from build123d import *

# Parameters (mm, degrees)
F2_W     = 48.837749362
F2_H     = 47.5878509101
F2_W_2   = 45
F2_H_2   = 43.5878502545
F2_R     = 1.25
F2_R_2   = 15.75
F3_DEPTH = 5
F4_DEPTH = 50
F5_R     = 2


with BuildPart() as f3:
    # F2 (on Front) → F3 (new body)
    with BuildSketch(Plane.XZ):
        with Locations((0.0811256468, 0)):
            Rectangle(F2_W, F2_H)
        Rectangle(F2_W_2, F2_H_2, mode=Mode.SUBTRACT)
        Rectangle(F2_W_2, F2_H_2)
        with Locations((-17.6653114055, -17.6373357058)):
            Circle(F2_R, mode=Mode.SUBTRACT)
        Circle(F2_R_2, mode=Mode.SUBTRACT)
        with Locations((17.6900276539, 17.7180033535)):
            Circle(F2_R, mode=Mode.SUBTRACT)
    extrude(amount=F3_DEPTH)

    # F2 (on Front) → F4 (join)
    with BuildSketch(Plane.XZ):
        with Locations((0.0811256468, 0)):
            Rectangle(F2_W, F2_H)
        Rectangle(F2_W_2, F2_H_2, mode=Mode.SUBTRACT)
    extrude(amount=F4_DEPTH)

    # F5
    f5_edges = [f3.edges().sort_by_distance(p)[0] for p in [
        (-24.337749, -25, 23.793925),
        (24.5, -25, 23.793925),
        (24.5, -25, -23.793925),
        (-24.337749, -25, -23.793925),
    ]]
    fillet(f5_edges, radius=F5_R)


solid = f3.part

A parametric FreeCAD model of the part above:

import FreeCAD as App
import Part
import Sketcher

V = App.Vector
Q = App.Units.Quantity


def edges_at(feature, points):
    """Names of the edges that pass closest to the given points."""
    edges = feature.Shape.Edges
    near = lambda p: min(range(len(edges)), key=lambda i: edges[i].distToShape(Part.Vertex(*p))[0])
    return sorted({f"Edge{near(p) + 1}" for p in points})


def add_polygon(sketch, points):
    """Adds a closed chain of lines whose ends are joined by coincident constraints."""
    first, n = sketch.GeometryCount, len(points)
    for a, b in zip(points, points[1:] + points[:1]):
        sketch.addGeometry(Part.LineSegment(App.Vector(*a, 0), App.Vector(*b, 0)), False)
    for i in range(n):
        sketch.addConstraint(Sketcher.Constraint("Coincident", first + i, 2, first + (i + 1) % n, 1))

doc = App.newDocument("Part")
body = doc.addObject("PartDesign::Body", "Body")

sketch1 = body.newObject("Sketcher::SketchObject", "Sketch")
sketch1.AttachmentSupport = (doc.getObject("XZ_Plane"), [""])
sketch1.MapMode = "FlatFace"
add_polygon(sketch1, [(-24.3, 23.8), (-24.3, -23.8), (24.5, -23.8), (24.5, 23.8)])
sketch1.addGeometry(Part.Circle(V(-17.7, -17.6, 0), V(0, 0, 1), 1.2), False)
sketch1.addGeometry(Part.Circle(V(0, 0, 0), V(0, 0, 1), 15.8), False)
sketch1.addGeometry(Part.Circle(V(17.7, 17.7, 0), V(0, 0, 1), 1.2), False)
sketch1.addConstraint([
    Sketcher.Constraint("Vertical", 0),
    Sketcher.Constraint("Horizontal", 1),
    Sketcher.Constraint("Vertical", 2),
    Sketcher.Constraint("Horizontal", 3),
    Sketcher.Constraint("Coincident", 5, 3, -1, 1),
    Sketcher.Constraint("Equal", 4, 6),
    Sketcher.Constraint("Diameter", 4, Q("2.5 mm")),
    Sketcher.Constraint("Diameter", 5, Q("31.5 mm")),
    Sketcher.Constraint("DistanceX", -1, 1, 1, 2, Q("24.5 mm")),
    Sketcher.Constraint("DistanceX", 1, 1, 1, 2, Q("48.837749 mm")),
    Sketcher.Constraint("DistanceY", 0, 2, 0, 1, Q("47.587851 mm")),
    Sketcher.Constraint("DistanceX", 4, 3, -1, 1, Q("17.665311 mm")),
    Sketcher.Constraint("DistanceX", 4, 3, 6, 3, Q("35.355339 mm")),
    Sketcher.Constraint("DistanceY", 4, 3, 6, 3, Q("35.355339 mm")),
    Sketcher.Constraint("DistanceY", 0, 2, 4, 3, Q("6.15659 mm")),
    Sketcher.Constraint("DistanceY", 4, 3, -1, 1, Q("17.637336 mm")),
])
pad1 = body.newObject("PartDesign::Pad", "Pad")
pad1.Profile = sketch1
pad1.Length = 5

sketch2 = body.newObject("Sketcher::SketchObject", "Sketch001")
sketch2.AttachmentSupport = (doc.getObject("XZ_Plane"), [""])
sketch2.MapMode = "FlatFace"
add_polygon(sketch2, [(-24, 24), (-24, -24), (25, -24), (25, 24)])
add_polygon(sketch2, [(22, -22), (-22, -22), (-22, 22), (22, 22)])
sketch2.addConstraint([
    Sketcher.Constraint("Vertical", 0),
    Sketcher.Constraint("Horizontal", 1),
    Sketcher.Constraint("Vertical", 2),
    Sketcher.Constraint("Horizontal", 3),
    Sketcher.Constraint("Horizontal", 4),
    Sketcher.Constraint("Vertical", 5),
    Sketcher.Constraint("Horizontal", 6),
    Sketcher.Constraint("Vertical", 7),
    Sketcher.Constraint("Symmetric", 4, 2, 6, 2, -1, 1),
    Sketcher.Constraint("DistanceX", 4, 2, 4, 1, Q("45 mm")),
    Sketcher.Constraint("DistanceY", 0, 2, 4, 2, Q("2 mm")),
    Sketcher.Constraint("DistanceX", 4, 2, 1, 2, Q("47 mm")),
    Sketcher.Constraint("DistanceY", 5, 2, 3, 2, Q("2 mm")),
    Sketcher.Constraint("DistanceX", 1, 1, 1, 2, Q("48.837749 mm")),
    Sketcher.Constraint("DistanceY", 0, 2, 0, 1, Q("47.587851 mm")),
])
pad2 = body.newObject("PartDesign::Pad", "Pad001")
pad2.Profile = sketch2
pad2.Length = 50
doc.recompute()

fillet = body.newObject("PartDesign::Fillet", "Fillet")
fillet.Base = (pad2, edges_at(pad2, [
    (-24.338, -25, 23.794),
    (24.5, -25, 23.794),
    (24.5, -25, -23.794),
    (-24.338, -25, -23.794),
]))
fillet.Radius = 2

doc.recompute()
